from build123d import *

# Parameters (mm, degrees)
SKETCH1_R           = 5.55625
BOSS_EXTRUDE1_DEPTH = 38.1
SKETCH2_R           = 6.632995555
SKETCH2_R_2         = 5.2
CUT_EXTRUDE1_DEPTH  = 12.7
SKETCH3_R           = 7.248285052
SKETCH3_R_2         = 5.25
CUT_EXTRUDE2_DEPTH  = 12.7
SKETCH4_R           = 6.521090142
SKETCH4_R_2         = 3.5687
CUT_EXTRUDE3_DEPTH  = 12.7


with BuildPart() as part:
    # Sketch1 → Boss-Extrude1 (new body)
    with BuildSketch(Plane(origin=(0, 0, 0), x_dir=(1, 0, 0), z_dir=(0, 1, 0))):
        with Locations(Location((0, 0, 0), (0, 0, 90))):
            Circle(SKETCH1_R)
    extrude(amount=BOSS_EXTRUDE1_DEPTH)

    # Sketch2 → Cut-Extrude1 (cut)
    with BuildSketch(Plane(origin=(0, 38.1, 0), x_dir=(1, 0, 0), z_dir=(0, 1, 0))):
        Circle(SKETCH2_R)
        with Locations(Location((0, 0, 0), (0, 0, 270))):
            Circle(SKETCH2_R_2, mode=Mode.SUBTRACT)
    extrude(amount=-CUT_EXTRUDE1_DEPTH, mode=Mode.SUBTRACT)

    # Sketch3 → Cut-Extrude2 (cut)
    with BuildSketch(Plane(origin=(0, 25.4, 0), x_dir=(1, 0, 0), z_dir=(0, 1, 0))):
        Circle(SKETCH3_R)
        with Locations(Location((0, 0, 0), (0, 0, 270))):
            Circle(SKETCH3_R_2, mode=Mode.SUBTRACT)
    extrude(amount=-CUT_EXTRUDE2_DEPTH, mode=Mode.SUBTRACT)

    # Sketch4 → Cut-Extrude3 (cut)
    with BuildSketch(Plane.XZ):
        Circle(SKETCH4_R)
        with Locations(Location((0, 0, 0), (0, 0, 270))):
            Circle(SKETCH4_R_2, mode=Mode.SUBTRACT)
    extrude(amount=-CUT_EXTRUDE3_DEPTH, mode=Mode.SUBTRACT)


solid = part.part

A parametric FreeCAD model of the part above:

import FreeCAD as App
import Part
import Sketcher
Q = App.Units.Quantity

doc = App.newDocument("Part")
params = doc.addObject("Spreadsheet::Sheet", "Params")
for row, (alias, value) in enumerate([
    ("sketch1_diameter", "0.4375 in"),
    ("pad1_length", "1.5 in"),
    ("pocket1_length", "0.5 in"),
    ("pocket2_length", "0.5 in"),
    ("sketch4_diameter", "0.281 in"),
    ("pocket3_length", "0.5 in"),
], start=1):
    params.set(f"A{row}", alias)
    params.set(f"B{row}", "=" + value)
    params.setAlias(f"B{row}", alias)

body = doc.addObject("PartDesign::Body", "Body")

# Sketch on XZ plane
sketch1 = body.newObject("Sketcher::SketchObject", "Sketch")
sketch1.AttachmentSupport = (doc.getObject("XZ_Plane"), [""])
sketch1.MapMode = "FlatFace"
sketch1.addGeometry(Part.Circle(App.Vector(0, 0, 0), App.Vector(0, 0, 1), 6), False)
sketch1.addConstraint([
    Sketcher.Constraint("Coincident", 0, 3, -1, 1),
    Sketcher.Constraint("Diameter", 0, Q("0.4375 in")),
])
sketch1.setExpression("Constraints[1]", "Params.sketch1_diameter")
pad1 = body.newObject("PartDesign::Pad", "Pad")
pad1.Profile = sketch1
pad1.setExpression("Length", "Params.pad1_length")
pad1.Reversed = True

# Sketch on XZ plane
sketch2 = body.newObject("Sketcher::SketchObject", "Sketch001")
sketch2.AttachmentSupport = (doc.getObject("XZ_Plane"), [""])
sketch2.MapMode = "FlatFace"
sketch2.AttachmentOffset = App.Placement(App.Vector(0, 0, -1.5 * 25.4), App.Rotation())
sketch2.addGeometry([
    Part.Circle(App.Vector(0, 0, 0), App.Vector(0, 0, 1), 7),
    Part.Circle(App.Vector(0, 0, 0), App.Vector(0, 0, 1), 5),
], False)
sketch2.addConstraint([
    Sketcher.Constraint("Coincident", 0, 3, -1, 1),
    Sketcher.Constraint("Coincident", 1, 3, -1, 1),
    Sketcher.Constraint("Diameter", 1, 10.4),
    Sketcher.Constraint("Diameter", 0, 13.265991),
])
pocket1 = body.newObject("PartDesign::Pocket", "Pocket")
pocket1.Profile = sketch2
pocket1.setExpression("Length", "Params.pocket1_length")
pocket1.Reversed = True

# Sketch on XZ plane
sketch3 = body.newObject("Sketcher::SketchObject", "Sketch002")
sketch3.AttachmentSupport = (doc.getObject("XZ_Plane"), [""])
sketch3.MapMode = "FlatFace"
sketch3.AttachmentOffset = App.Placement(App.Vector(0, 0, -1 * 25.4), App.Rotation())
sketch3.addGeometry([
    Part.Circle(App.Vector(0, 0, 0), App.Vector(0, 0, 1), 7),
    Part.Circle(App.Vector(0, 0, 0), App.Vector(0, 0, 1), 5),
], False)
sketch3.addConstraint([
    Sketcher.Constraint("Coincident", 0, 3, -1, 1),
    Sketcher.Constraint("Coincident", 1, 3, -1, 1),
    Sketcher.Constraint("Diameter", 1, 10.5),
    Sketcher.Constraint("Diameter", 0, 14.49657),
])
pocket2 = body.newObject("PartDesign::Pocket", "Pocket001")
pocket2.Profile = sketch3
pocket2.setExpression("Length", "Params.pocket2_length")
pocket2.Reversed = True

# Sketch on XZ plane
sketch4 = body.newObject("Sketcher::SketchObject", "Sketch003")
sketch4.AttachmentSupport = (doc.getObject("XZ_Plane"), [""])
sketch4.MapMode = "FlatFace"
sketch4.addGeometry([
    Part.Circle(App.Vector(0, 0, 0), App.Vector(0, 0, 1), 6.5),
    Part.Circle(App.Vector(0, 0, 0), App.Vector(0, 0, 1), 3.6),
], False)
sketch4.addConstraint([
    Sketcher.Constraint("Coincident", 0, 3, -1, 1),
    Sketcher.Constraint("Coincident", 1, 3, -1, 1),
    Sketcher.Constraint("Diameter", 1, Q("0.281 in")),
    Sketcher.Constraint("Diameter", 0, 13.04218),
])
sketch4.setExpression("Constraints[2]", "Params.sketch4_diameter")
pocket3 = body.newObject("PartDesign::Pocket", "Pocket002")
pocket3.Profile = sketch4
pocket3.setExpression("Length", "Params.pocket3_length")

doc.recompute()
